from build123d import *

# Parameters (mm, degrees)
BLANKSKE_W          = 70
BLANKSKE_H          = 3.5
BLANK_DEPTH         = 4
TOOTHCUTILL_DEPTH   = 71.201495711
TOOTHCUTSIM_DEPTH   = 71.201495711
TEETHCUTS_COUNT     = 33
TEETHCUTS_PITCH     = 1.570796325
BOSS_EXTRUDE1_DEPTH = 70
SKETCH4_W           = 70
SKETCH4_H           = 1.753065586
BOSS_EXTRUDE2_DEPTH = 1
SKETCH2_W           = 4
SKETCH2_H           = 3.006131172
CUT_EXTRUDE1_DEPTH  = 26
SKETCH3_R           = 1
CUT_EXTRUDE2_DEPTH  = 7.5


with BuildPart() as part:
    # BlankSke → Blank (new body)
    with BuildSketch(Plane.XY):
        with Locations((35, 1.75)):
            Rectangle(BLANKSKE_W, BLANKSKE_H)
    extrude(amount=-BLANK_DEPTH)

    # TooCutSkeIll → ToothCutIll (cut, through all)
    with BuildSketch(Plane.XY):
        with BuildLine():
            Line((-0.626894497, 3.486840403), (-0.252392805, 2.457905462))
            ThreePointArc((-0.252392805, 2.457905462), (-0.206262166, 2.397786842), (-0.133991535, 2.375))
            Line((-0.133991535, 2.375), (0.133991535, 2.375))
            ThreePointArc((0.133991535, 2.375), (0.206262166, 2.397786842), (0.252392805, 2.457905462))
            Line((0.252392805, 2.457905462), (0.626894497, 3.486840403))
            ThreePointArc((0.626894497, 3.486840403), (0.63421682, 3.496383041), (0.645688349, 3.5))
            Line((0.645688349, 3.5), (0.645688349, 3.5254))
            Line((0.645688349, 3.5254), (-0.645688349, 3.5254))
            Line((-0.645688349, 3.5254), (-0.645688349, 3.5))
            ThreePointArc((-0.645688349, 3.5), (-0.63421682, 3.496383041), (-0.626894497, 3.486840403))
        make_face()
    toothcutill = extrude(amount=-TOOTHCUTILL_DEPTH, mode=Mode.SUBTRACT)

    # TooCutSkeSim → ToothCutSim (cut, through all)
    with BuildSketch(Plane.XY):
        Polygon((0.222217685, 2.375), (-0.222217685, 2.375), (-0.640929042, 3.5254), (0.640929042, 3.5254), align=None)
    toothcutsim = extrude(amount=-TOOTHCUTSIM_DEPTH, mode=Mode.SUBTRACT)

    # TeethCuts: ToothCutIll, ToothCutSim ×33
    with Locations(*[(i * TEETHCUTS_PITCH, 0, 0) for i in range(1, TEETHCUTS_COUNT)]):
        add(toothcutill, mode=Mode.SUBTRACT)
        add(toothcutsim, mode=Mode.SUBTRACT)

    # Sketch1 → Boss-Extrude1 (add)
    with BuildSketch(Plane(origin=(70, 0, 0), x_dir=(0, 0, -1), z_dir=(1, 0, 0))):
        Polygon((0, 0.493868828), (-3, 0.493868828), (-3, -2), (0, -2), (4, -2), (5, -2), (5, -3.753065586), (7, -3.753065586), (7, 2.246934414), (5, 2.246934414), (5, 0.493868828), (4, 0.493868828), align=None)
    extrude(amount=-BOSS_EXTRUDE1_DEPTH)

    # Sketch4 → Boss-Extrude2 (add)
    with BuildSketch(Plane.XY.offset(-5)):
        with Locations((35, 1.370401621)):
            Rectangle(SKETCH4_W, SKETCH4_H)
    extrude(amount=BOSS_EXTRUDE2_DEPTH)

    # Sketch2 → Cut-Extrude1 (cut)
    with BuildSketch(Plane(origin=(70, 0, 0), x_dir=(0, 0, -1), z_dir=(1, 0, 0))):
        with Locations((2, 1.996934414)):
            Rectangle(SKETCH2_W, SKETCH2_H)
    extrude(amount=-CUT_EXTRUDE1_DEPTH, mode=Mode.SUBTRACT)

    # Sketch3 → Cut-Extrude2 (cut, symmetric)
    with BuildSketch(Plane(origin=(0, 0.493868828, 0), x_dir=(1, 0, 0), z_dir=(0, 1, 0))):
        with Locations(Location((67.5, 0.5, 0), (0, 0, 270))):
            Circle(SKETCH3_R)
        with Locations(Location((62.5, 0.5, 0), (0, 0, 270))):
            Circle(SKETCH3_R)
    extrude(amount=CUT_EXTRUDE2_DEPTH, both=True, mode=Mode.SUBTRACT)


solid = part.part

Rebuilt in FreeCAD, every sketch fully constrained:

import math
import FreeCAD as App
import Part
import Sketcher
Q = App.Units.Quantity

doc = App.newDocument("Part")
params = doc.addObject("Spreadsheet::Sheet", "Params")
for row, (alias, value) in enumerate([
    ("sketch1_width", "70 mm"),
    ("sketch1_height", "3.5 mm"),
    ("pad1_length", "4 mm"),
    ("sketch2_radius", "0.02 mm"),
    ("linearpattern_pitch", "1.570796 mm"),
    ("sketch4_width", "6 mm"),
    ("sketch4_height", "8 mm"),
    ("sketch4_height2", "2 mm"),
    ("pad2_length", "70 mm"),
    ("sketch5_width", "70 mm"),
    ("pad3_length", "1 mm"),
    ("sketch6_height", "4 mm"),
    ("pocket3_length", "26 mm"),
    ("sketch7_diameter", "2 mm"),
    ("pocket4_length", "15 mm"),
], start=1):
    params.set(f"A{row}", alias)
    params.set(f"B{row}", "=" + value)
    params.setAlias(f"B{row}", alias)

body = doc.addObject("PartDesign::Body", "Body")

sketch1 = body.newObject("Sketcher::SketchObject", "Sketch")
sketch1.AttachmentSupport = (doc.getObject("XY_Plane"), [""])
sketch1.MapMode = "FlatFace"
sketch1.addGeometry(Part.LineSegment(App.Vector(0, 3.5, 0), App.Vector(0, 0, 0)), False)
sketch1.addGeometry(Part.LineSegment(App.Vector(0, 0, 0), App.Vector(70, 0, 0)), False)
sketch1.addGeometry(Part.LineSegment(App.Vector(70, 0, 0), App.Vector(70, 3.5, 0)), False)
sketch1.addGeometry(Part.LineSegment(App.Vector(70, 3.5, 0), App.Vector(0, 3.5, 0)), False)
sketch1.addConstraint(Sketcher.Constraint("Coincident", 0, 2, 1, 1))
sketch1.addConstraint(Sketcher.Constraint("Coincident", 1, 2, 2, 1))
sketch1.addConstraint(Sketcher.Constraint("Coincident", 2, 2, 3, 1))
sketch1.addConstraint(Sketcher.Constraint("Coincident", 3, 2, 0, 1))
sketch1.addConstraint(Sketcher.Constraint("Vertical", 0))
sketch1.addConstraint(Sketcher.Constraint("Horizontal", 1))
sketch1.addConstraint(Sketcher.Constraint("Vertical", 2))
sketch1.addConstraint(Sketcher.Constraint("Horizontal", 3))
sketch1.addConstraint(Sketcher.Constraint("Coincident", 0, 2, -1, 1))
sketch1.addConstraint(Sketcher.Constraint("DistanceX", 1, 1, 1, 2, Q("70 mm")))
sketch1.addConstraint(Sketcher.Constraint("DistanceY", 0, 2, 0, 1, Q("3.5 mm")))
sketch1.setExpression("Constraints[9]", "Params.sketch1_width")
sketch1.setExpression("Constraints[10]", "Params.sketch1_height")
pad1 = body.newObject("PartDesign::Pad", "Pad")
pad1.Profile = sketch1
pad1.setExpression("Length", "Params.pad1_length")
pad1.Reversed = True

sketch2 = body.newObject("Sketcher::SketchObject", "Sketch001")
sketch2.AttachmentSupport = (doc.getObject("XY_Plane"), [""])
sketch2.MapMode = "FlatFace"
sketch2.addGeometry(Part.LineSegment(App.Vector(-0.626894, 3.48684, 0), App.Vector(-0.252393, 2.457905, 0)), False)
sketch2.addGeometry(Part.ArcOfCircle(Part.Circle(App.Vector(-0.133992, 2.501, 0), App.Vector(0, 0, 1), 0.126), math.radians(-160.000001), math.radians(-90)), False)
sketch2.addGeometry(Part.LineSegment(App.Vector(-0.133992, 2.375, 0), App.Vector(0.133992, 2.375, 0)), False)
sketch2.addGeometry(Part.ArcOfCircle(Part.Circle(App.Vector(0.133992, 2.501, 0), App.Vector(0, 0, 1), 0.126), math.radians(-90), math.radians(-19.999999)), False)
sketch2.addGeometry(Part.LineSegment(App.Vector(0.252393, 2.457905, 0), App.Vector(0.626894, 3.48684, 0)), False)
sketch2.addGeometry(Part.ArcOfCircle(Part.Circle(App.Vector(0.645688, 3.48, 0), App.Vector(0, 0, 1), 0.02), math.radians(89.999997), math.radians(160.000004)), False)
sketch2.addGeometry(Part.LineSegment(App.Vector(0.645688, 3.5, 0), App.Vector(0.645688, 3.5254, 0)), False)
sketch2.addGeometry(Part.LineSegment(App.Vector(0.645688, 3.5254, 0), App.Vector(-0.645688, 3.5254, 0)), False)
sketch2.addGeometry(Part.LineSegment(App.Vector(-0.645688, 3.5254, 0), App.Vector(-0.645688, 3.5, 0)), False)
sketch2.addGeometry(Part.ArcOfCircle(Part.Circle(App.Vector(-0.645688, 3.48, 0), App.Vector(0, 0, 1), 0.02), math.radians(19.999996), math.radians(90.000003)), False)
sketch2.addConstraint(Sketcher.Constraint("Tangent", 0, 2, 1, 1))
sketch2.addConstraint(Sketcher.Constraint("Tangent", 1, 2, 2, 1))
sketch2.addConstraint(Sketcher.Constraint("Tangent", 2, 2, 3, 1))
sketch2.addConstraint(Sketcher.Constraint("Tangent", 3, 2, 4, 1))
sketch2.addConstraint(Sketcher.Constraint("Tangent", 4, 2, 5, 2))
sketch2.addConstraint(Sketcher.Constraint("Coincident", 5, 1, 6, 1))
sketch2.addConstraint(Sketcher.Constraint("Coincident", 6, 2, 7, 1))
sketch2.addConstraint(Sketcher.Constraint("Coincident", 7, 2, 8, 1))
sketch2.addConstraint(Sketcher.Constraint("Coincident", 8, 2, 9, 2))
sketch2.addConstraint(Sketcher.Constraint("Tangent", 9, 1, 0, 1))
sketch2.addConstraint(Sketcher.Constraint("Horizontal", 2))
sketch2.addConstraint(Sketcher.Constraint("Vertical", 6))
sketch2.addConstraint(Sketcher.Constraint("Horizontal", 7))
sketch2.addConstraint(Sketcher.Constraint("Vertical", 8))
sketch2.addConstraint(Sketcher.Constraint("Equal", 1, 3))
sketch2.addConstraint(Sketcher.Constraint("Equal", 5, 9))
sketch2.addConstraint(Sketcher.Constraint("Symmetric", 5, 3, 9, 3, -2))
sketch2.addConstraint(Sketcher.Constraint("Horizontal", 0, 2, 3, 2))
sketch2.addConstraint(Sketcher.Constraint("Vertical", 9, 3, 7, 2))
sketch2.addConstraint(Sketcher.Constraint("Angle", 0, Q("-70 deg")))
sketch2.addConstraint(Sketcher.Constraint("Radius", 5, Q("0.02 mm")))
sketch2.addConstraint(Sketcher.Constraint("Radius", 1, Q("0.126 mm")))
sketch2.addConstraint(Sketcher.Constraint("DistanceY", -1, 1, 5, 1, Q("3.5 mm")))
sketch2.addConstraint(Sketcher.Constraint("DistanceY", 6, 1, 6, 2, Q("0.0254 mm")))
sketch2.addConstraint(Sketcher.Constraint("DistanceY", -1, 1, 1, 3, Q("2.501 mm")))
sketch2.addConstraint(Sketcher.Constraint("DistanceX", 2, 1, 2, 2, Q("0.267983 mm")))
sketch2.addConstraint(Sketcher.Constraint("DistanceX", 7, 2, 7, 1, Q("1.291377 mm")))
sketch2.setExpression("Constraints[20]", "Params.sketch2_radius")
pocket1 = body.newObject("PartDesign::Pocket", "Pocket")
pocket1.Profile = sketch2
pocket1.Type = "ThroughAll"

sketch3 = body.newObject("Sketcher::SketchObject", "Sketch002")
sketch3.AttachmentSupport = (doc.getObject("XY_Plane"), [""])
sketch3.MapMode = "FlatFace"
sketch3.addGeometry(Part.LineSegment(App.Vector(-0.222218, 2.375, 0), App.Vector(0.222218, 2.375, 0)), False)
sketch3.addGeometry(Part.LineSegment(App.Vector(0.222218, 2.375, 0), App.Vector(0.640929, 3.5254, 0)), False)
sketch3.addGeometry(Part.LineSegment(App.Vector(0.640929, 3.5254, 0), App.Vector(-0.640929, 3.5254, 0)), False)
sketch3.addGeometry(Part.LineSegment(App.Vector(-0.640929, 3.5254, 0), App.Vector(-0.222218, 2.375, 0)), False)
sketch3.addConstraint(Sketcher.Constraint("Coincident", 0, 2, 1, 1))
sketch3.addConstraint(Sketcher.Constraint("Coincident", 1, 2, 2, 1))
sketch3.addConstraint(Sketcher.Constraint("Coincident", 2, 2, 3, 1))
sketch3.addConstraint(Sketcher.Constraint("Coincident", 3, 2, 0, 1))
sketch3.addConstraint(Sketcher.Constraint("Horizontal", 0))
sketch3.addConstraint(Sketcher.Constraint("Horizontal", 2))
sketch3.addConstraint(Sketcher.Constraint("Equal", 1, 3))
sketch3.addConstraint(Sketcher.Constraint("Angle", 1, Q("70 deg")))
sketch3.addConstraint(Sketcher.Constraint("DistanceY", -1, 1, 0, 2, Q("2.375 mm")))
sketch3.addConstraint(Sketcher.Constraint("DistanceX", 2, 2, 2, 1, Q("1.281858 mm")))
sketch3.addConstraint(Sketcher.Constraint("DistanceY", -1, 1, 1, 2, Q("3.5254 mm")))
sketch3.addConstraint(Sketcher.Constraint("DistanceX", -1, 1, 1, 2, Q("0.640929 mm")))
pocket2 = body.newObject("PartDesign::Pocket", "Pocket001")
pocket2.Profile = sketch3
pocket2.Type = "ThroughAll"
doc.recompute()

linearpattern = body.newObject("PartDesign::LinearPattern", "LinearPattern")
linearpattern.Originals = [pocket1, pocket2]
linearpattern.Direction = (doc.getObject("X_Axis"), [""])
linearpattern.Mode = "offset"
linearpattern.setExpression("Offset", "Params.linearpattern_pitch")
linearpattern.Occurrences = 33
body.Tip = linearpattern

sketch4 = body.newObject("Sketcher::SketchObject", "Sketch003")
sketch4.AttachmentSupport = (doc.getObject("YZ_Plane"), [""])
sketch4.MapMode = "FlatFace"
sketch4.AttachmentOffset = App.Placement(App.Vector(0, 0, 70), App.Rotation())
sketch4.addGeometry(Part.LineSegment(App.Vector(0.493869, 3, 0), App.Vector(-2, 3, 0)), False)
sketch4.addGeometry(Part.LineSegment(App.Vector(-2, 3, 0), App.Vector(-2, -5, 0)), False)
sketch4.addGeometry(Part.LineSegment(App.Vector(-2, -5, 0), App.Vector(-3.753066, -5, 0)), False)
sketch4.addGeometry(Part.LineSegment(App.Vector(-3.753066, -5, 0), App.Vector(-3.753066, -7, 0)), False)
sketch4.addGeometry(Part.LineSegment(App.Vector(-3.753066, -7, 0), App.Vector(2.246934, -7, 0)), False)
sketch4.addGeometry(Part.LineSegment(App.Vector(2.246934, -7, 0), App.Vector(2.246934, -5, 0)), False)
sketch4.addGeometry(Part.LineSegment(App.Vector(2.246934, -5, 0), App.Vector(0.493869, -5, 0)), False)
sketch4.addGeometry(Part.LineSegment(App.Vector(0.493869, -5, 0), App.Vector(0.493869, 3, 0)), False)
sketch4.addConstraint(Sketcher.Constraint("Coincident", 0, 2, 1, 1))
sketch4.addConstraint(Sketcher.Constraint("Coincident", 1, 2, 2, 1))
sketch4.addConstraint(Sketcher.Constraint("Coincident", 2, 2, 3, 1))
sketch4.addConstraint(Sketcher.Constraint("Coincident", 3, 2, 4, 1))
sketch4.addConstraint(Sketcher.Constraint("Coincident", 4, 2, 5, 1))
sketch4.addConstraint(Sketcher.Constraint("Coincident", 5, 2, 6, 1))
sketch4.addConstraint(Sketcher.Constraint("Coincident", 6, 2, 7, 1))
sketch4.addConstraint(Sketcher.Constraint("Coincident", 7, 2, 0, 1))
sketch4.addConstraint(Sketcher.Constraint("Horizontal", 0))
sketch4.addConstraint(Sketcher.Constraint("Vertical", 1))
sketch4.addConstraint(Sketcher.Constraint("Horizontal", 2))
sketch4.addConstraint(Sketcher.Constraint("Vertical", 3))
sketch4.addConstraint(Sketcher.Constraint("Horizontal", 4))
sketch4.addConstraint(Sketcher.Constraint("Vertical", 5))
sketch4.addConstraint(Sketcher.Constraint("Horizontal", 6))
sketch4.addConstraint(Sketcher.Constraint("Vertical", 7))
sketch4.addConstraint(Sketcher.Constraint("Horizontal", 2, 2, 5, 2))
sketch4.addConstraint(Sketcher.Constraint("Equal", 2, 6))
sketch4.addConstraint(Sketcher.Constraint("DistanceX", 4, 1, 4, 2, Q("6 mm")))
sketch4.addConstraint(Sketcher.Constraint("DistanceY", 1, 2, 1, 1, Q("8 mm")))
sketch4.addConstraint(Sketcher.Constraint("DistanceY", 3, 2, 3, 1, Q("2 mm")))
sketch4.addConstraint(Sketcher.Constraint("DistanceX", 0, 2, -1, 1, Q("2 mm")))
sketch4.addConstraint(Sketcher.Constraint("DistanceY", -1, 1, 0, 2, Q("3 mm")))
sketch4.addConstraint(Sketcher.Constraint("DistanceX", 0, 2, 0, 1, Q("2.493869 mm")))
sketch4.setExpression("Constraints[18]", "Params.sketch4_width")
sketch4.setExpression("Constraints[19]", "Params.sketch4_height")
sketch4.setExpression("Constraints[20]", "Params.sketch4_height2")
pad2 = body.newObject("PartDesign::Pad", "Pad001")
pad2.Profile = sketch4
pad2.setExpression("Length", "Params.pad2_length")
pad2.Reversed = True

sketch5 = body.newObject("Sketcher::SketchObject", "Sketch004")
sketch5.AttachmentSupport = (doc.getObject("XY_Plane"), [""])
sketch5.MapMode = "FlatFace"
sketch5.AttachmentOffset = App.Placement(App.Vector(0, 0, -5), App.Rotation())
sketch5.addGeometry(Part.LineSegment(App.Vector(0, 2.246934, 0), App.Vector(0, 0.493869, 0)), False)
sketch5.addGeometry(Part.LineSegment(App.Vector(0, 0.493869, 0), App.Vector(70, 0.493869, 0)), False)
sketch5.addGeometry(Part.LineSegment(App.Vector(70, 0.493869, 0), App.Vector(70, 2.246934, 0)), False)
sketch5.addGeometry(Part.LineSegment(App.Vector(70, 2.246934, 0), App.Vector(0, 2.246934, 0)), False)
sketch5.addConstraint(Sketcher.Constraint("Coincident", 0, 2, 1, 1))
sketch5.addConstraint(Sketcher.Constraint("Coincident", 1, 2, 2, 1))
sketch5.addConstraint(Sketcher.Constraint("Coincident", 2, 2, 3, 1))
sketch5.addConstraint(Sketcher.Constraint("Coincident", 3, 2, 0, 1))
sketch5.addConstraint(Sketcher.Constraint("Vertical", 0))
sketch5.addConstraint(Sketcher.Constraint("Horizontal", 1))
sketch5.addConstraint(Sketcher.Constraint("Vertical", 2))
sketch5.addConstraint(Sketcher.Constraint("Horizontal", 3))
sketch5.addConstraint(Sketcher.Constraint("PointOnObject", 0, 2, -2))
sketch5.addConstraint(Sketcher.Constraint("DistanceX", 1, 1, 1, 2, Q("70 mm")))
sketch5.addConstraint(Sketcher.Constraint("DistanceY", 0, 2, 0, 1, Q("1.753066 mm")))
sketch5.addConstraint(Sketcher.Constraint("DistanceY", -1, 1, 0, 2, Q("0.493869 mm")))
sketch5.setExpression("Constraints[9]", "Params.sketch5_width")
pad3 = body.newObject("PartDesign::Pad", "Pad002")
pad3.Profile = sketch5
pad3.setExpression("Length", "Params.pad3_length")

sketch6 = body.newObject("Sketcher::SketchObject", "Sketch005")
sketch6.AttachmentSupport = (doc.getObject("YZ_Plane"), [""])
sketch6.MapMode = "FlatFace"
sketch6.AttachmentOffset = App.Placement(App.Vector(0, 0, 70), App.Rotation())
sketch6.addGeometry(Part.LineSegment(App.Vector(3.5, 0, 0), App.Vector(0.493869, 0, 0)), False)
sketch6.addGeometry(Part.LineSegment(App.Vector(0.493869, 0, 0), App.Vector(0.493869, -4, 0)), False)
sketch6.addGeometry(Part.LineSegment(App.Vector(0.493869, -4, 0), App.Vector(3.5, -4, 0)), False)
sketch6.addGeometry(Part.LineSegment(App.Vector(3.5, -4, 0), App.Vector(3.5, 0, 0)), False)
sketch6.addConstraint(Sketcher.Constraint("Coincident", 0, 2, 1, 1))
sketch6.addConstraint(Sketcher.Constraint("Coincident", 1, 2, 2, 1))
sketch6.addConstraint(Sketcher.Constraint("Coincident", 2, 2, 3, 1))
sketch6.addConstraint(Sketcher.Constraint("Coincident", 3, 2, 0, 1))
sketch6.addConstraint(Sketcher.Constraint("Horizontal", 0))
sketch6.addConstraint(Sketcher.Constraint("Vertical", 1))
sketch6.addConstraint(Sketcher.Constraint("Horizontal", 2))
sketch6.addConstraint(Sketcher.Constraint("Vertical", 3))
sketch6.addConstraint(Sketcher.Constraint("PointOnObject", 0, 2, -1))
sketch6.addConstraint(Sketcher.Constraint("DistanceY", 1, 2, 1, 1, Q("4 mm")))
sketch6.addConstraint(Sketcher.Constraint("DistanceX", -1, 1, 2, 2, Q("3.5 mm")))
sketch6.addConstraint(Sketcher.Constraint("DistanceX", 0, 2, 0, 1, Q("3.006131 mm")))
sketch6.setExpression("Constraints[9]", "Params.sketch6_height")
pocket3 = body.newObject("PartDesign::Pocket", "Pocket002")
pocket3.Profile = sketch6
pocket3.setExpression("Length", "Params.pocket3_length")

sketch7 = body.newObject("Sketcher::SketchObject", "Sketch006")
sketch7.AttachmentSupport = (doc.getObject("XZ_Plane"), [""])
sketch7.MapMode = "FlatFace"
sketch7.AttachmentOffset = App.Placement(App.Vector(0, 0, -0.493869), App.Rotation())
sketch7.addGeometry(Part.Circle(App.Vector(67.5, -0.5, 0), App.Vector(0, 0, 1), 1), False)
sketch7.addGeometry(Part.Circle(App.Vector(62.5, -0.5, 0), App.Vector(0, 0, 1), 1), False)
sketch7.addConstraint(Sketcher.Constraint("Equal", 0, 1))
sketch7.addConstraint(Sketcher.Constraint("Horizontal", 0, 3, 1, 3))
sketch7.addConstraint(Sketcher.Constraint("Diameter", 0, Q("2 mm")))
sketch7.addConstraint(Sketcher.Constraint("DistanceX", 1, 3, 0, 3, Q("5 mm")))
sketch7.addConstraint(Sketcher.Constraint("DistanceX", -1, 1, 0, 3, Q("67.5 mm")))
sketch7.addConstraint(Sketcher.Constraint("DistanceY", 0, 3, -1, 1, Q("0.5 mm")))
sketch7.setExpression("Constraints[2]", "Params.sketch7_diameter")
pocket4 = body.newObject("PartDesign::Pocket", "Pocket003")
pocket4.Profile = sketch7
pocket4.setExpression("Length", "Params.pocket4_length")
pocket4.Midplane = True

doc.recompute()
